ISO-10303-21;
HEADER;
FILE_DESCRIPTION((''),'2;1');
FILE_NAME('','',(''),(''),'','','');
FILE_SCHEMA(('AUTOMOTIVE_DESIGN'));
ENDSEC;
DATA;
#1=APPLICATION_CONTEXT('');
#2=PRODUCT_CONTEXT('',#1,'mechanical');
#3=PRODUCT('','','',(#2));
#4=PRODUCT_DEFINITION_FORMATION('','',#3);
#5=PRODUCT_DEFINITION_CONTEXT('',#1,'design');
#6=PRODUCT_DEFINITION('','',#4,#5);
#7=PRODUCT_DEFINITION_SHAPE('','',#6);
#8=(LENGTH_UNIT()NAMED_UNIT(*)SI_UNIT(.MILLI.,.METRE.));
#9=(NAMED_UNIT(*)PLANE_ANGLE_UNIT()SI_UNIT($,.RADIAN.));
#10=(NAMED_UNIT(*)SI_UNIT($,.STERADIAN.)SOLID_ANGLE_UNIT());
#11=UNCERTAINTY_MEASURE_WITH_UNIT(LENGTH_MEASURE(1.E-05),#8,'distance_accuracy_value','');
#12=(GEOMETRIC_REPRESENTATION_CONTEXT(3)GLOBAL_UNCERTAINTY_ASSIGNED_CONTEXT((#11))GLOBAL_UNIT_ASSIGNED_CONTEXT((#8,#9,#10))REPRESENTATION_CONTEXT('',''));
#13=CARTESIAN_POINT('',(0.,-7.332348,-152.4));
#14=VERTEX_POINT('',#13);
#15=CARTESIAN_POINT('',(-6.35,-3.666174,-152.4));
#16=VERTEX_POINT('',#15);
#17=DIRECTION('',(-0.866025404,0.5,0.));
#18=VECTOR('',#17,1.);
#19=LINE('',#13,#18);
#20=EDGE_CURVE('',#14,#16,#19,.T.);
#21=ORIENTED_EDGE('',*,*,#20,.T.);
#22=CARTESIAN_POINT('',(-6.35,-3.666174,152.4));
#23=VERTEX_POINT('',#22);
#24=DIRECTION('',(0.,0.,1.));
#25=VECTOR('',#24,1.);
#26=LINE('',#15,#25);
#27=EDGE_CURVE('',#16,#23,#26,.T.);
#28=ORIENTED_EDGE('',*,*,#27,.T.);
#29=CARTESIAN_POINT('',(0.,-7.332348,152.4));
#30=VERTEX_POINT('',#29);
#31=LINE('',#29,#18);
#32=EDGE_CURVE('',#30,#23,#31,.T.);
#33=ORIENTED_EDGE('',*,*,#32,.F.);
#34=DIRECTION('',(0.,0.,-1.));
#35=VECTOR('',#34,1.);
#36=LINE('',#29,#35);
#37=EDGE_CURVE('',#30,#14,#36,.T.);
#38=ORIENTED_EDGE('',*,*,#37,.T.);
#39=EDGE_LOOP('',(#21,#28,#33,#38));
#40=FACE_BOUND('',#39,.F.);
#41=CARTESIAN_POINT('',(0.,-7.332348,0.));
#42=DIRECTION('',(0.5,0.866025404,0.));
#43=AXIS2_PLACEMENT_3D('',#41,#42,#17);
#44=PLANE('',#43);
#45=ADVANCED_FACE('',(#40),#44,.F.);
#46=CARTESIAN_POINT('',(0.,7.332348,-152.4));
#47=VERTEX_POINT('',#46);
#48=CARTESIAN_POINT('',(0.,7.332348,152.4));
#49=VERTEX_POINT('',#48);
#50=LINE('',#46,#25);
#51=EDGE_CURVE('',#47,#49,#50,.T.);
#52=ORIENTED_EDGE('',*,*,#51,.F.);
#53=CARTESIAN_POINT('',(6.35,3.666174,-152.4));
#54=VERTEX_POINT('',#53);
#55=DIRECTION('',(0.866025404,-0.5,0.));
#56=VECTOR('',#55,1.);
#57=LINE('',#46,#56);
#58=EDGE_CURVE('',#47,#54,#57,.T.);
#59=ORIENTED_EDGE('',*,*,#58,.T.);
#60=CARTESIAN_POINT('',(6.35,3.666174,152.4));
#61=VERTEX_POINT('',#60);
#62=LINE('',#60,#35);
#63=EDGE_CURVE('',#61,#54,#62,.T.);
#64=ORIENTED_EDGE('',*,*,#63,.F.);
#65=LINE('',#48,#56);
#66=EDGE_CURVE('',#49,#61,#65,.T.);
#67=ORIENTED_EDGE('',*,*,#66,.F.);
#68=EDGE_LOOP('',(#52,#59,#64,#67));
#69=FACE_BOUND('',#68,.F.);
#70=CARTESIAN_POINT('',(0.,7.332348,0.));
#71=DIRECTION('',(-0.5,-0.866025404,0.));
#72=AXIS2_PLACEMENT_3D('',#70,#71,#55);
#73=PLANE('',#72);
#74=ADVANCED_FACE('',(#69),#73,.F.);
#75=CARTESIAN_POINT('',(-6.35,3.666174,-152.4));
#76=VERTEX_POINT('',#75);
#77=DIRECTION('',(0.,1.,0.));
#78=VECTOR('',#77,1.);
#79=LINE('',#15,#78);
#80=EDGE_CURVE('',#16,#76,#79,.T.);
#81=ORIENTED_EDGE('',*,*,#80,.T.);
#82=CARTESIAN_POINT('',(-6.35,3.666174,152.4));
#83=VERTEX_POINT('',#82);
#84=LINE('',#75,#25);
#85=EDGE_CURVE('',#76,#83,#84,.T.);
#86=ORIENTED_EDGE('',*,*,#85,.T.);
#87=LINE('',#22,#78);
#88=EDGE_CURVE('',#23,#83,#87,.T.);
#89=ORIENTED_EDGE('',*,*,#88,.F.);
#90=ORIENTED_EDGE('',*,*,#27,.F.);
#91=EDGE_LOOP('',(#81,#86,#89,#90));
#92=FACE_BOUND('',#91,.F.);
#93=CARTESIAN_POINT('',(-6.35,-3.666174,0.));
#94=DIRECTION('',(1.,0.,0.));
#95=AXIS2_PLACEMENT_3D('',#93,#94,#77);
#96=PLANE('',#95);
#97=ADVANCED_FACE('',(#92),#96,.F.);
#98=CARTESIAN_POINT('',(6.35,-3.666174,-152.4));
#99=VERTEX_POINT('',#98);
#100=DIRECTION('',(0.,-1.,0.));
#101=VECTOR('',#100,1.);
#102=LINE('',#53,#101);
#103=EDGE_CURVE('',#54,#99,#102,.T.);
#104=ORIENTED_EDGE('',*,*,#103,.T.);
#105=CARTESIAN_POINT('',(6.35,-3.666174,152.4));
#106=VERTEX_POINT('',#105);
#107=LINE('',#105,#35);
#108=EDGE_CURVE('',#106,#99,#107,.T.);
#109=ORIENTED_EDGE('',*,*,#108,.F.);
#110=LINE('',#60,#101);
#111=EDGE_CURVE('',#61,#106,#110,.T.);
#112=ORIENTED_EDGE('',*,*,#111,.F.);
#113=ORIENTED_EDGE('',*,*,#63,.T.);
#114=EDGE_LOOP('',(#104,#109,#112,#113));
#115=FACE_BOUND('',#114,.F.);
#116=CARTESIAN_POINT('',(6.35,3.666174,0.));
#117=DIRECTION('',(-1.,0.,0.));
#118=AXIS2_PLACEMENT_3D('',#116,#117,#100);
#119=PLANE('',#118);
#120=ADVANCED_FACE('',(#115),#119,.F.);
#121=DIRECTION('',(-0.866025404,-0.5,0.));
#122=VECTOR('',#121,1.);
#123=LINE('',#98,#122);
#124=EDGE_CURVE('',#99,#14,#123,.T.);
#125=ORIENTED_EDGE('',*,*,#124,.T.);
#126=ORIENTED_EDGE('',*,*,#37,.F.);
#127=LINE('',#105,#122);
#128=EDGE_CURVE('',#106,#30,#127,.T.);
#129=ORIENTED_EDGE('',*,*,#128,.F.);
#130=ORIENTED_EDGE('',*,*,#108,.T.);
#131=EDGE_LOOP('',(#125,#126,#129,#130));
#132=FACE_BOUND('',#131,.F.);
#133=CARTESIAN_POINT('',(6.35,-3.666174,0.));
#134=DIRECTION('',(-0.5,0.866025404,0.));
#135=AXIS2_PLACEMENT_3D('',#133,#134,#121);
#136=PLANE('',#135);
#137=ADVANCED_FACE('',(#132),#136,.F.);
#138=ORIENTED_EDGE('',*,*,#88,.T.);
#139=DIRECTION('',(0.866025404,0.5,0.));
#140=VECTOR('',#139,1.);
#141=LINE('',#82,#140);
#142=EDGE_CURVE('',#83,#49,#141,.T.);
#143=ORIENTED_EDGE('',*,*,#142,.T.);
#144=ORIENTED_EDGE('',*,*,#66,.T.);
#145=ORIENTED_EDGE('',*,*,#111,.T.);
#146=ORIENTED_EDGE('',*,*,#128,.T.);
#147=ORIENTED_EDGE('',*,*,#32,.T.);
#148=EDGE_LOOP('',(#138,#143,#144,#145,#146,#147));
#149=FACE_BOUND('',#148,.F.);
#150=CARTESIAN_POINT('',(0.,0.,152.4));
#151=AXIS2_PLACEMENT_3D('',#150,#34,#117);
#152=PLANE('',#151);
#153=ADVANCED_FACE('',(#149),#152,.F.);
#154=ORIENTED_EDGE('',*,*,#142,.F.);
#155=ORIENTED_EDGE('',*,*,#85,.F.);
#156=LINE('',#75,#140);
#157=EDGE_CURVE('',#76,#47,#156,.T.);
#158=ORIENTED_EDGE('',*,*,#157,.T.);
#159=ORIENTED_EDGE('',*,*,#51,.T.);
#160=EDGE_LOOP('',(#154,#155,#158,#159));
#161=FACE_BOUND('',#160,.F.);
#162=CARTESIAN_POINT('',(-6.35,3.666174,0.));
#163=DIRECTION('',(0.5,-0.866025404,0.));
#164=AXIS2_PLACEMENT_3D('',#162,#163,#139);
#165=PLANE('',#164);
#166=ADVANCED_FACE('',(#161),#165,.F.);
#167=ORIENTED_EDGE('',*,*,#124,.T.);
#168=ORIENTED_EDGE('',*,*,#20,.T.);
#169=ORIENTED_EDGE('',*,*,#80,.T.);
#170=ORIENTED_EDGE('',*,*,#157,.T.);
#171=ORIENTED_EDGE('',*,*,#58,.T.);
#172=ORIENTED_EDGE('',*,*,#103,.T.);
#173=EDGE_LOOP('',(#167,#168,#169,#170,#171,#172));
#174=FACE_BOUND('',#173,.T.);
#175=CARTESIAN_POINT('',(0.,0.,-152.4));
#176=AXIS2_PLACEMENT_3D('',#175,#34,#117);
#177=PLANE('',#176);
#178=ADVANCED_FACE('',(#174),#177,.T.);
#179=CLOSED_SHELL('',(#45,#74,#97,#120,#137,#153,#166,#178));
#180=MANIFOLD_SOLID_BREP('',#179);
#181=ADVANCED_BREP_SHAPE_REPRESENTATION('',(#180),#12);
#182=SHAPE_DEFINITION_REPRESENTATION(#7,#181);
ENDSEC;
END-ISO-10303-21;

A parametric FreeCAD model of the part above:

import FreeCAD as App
import Part
import Sketcher
Q = App.Units.Quantity


def add_polygon(sketch, points):
    """Adds a closed chain of lines whose ends are joined by coincident constraints."""
    first, n = sketch.GeometryCount, len(points)
    for a, b in zip(points, points[1:] + points[:1]):
        sketch.addGeometry(Part.LineSegment(App.Vector(*a, 0), App.Vector(*b, 0)), False)
    for i in range(n):
        sketch.addConstraint(Sketcher.Constraint("Coincident", first + i, 2, first + (i + 1) % n, 1))

doc = App.newDocument("Part")
body = doc.addObject("PartDesign::Body", "Body")

sketch1 = body.newObject("Sketcher::SketchObject", "Sketch")
sketch1.AttachmentSupport = (doc.getObject("XY_Plane"), [""])
sketch1.MapMode = "FlatFace"
add_polygon(sketch1, [(6, 4), (0, 7), (-6, 4), (-6, -4), (0, -7), (6, -4)])
sketch1.addConstraint([
    Sketcher.Constraint("Vertical", 2),
    Sketcher.Constraint("Vertical", 5),
    Sketcher.Constraint("Symmetric", 0, 2, 3, 2, -1, 1),
    Sketcher.Constraint("Symmetric", 1, 2, 4, 2, -1, 1),
    Sketcher.Constraint("PointOnObject", 0, 2, -2),
    Sketcher.Constraint("Parallel", 0, 3),
    Sketcher.Constraint("Horizontal", 2, 2, 4, 2),
    Sketcher.Constraint("Angle", 0, Q("150 deg")),
    Sketcher.Constraint("DistanceX", 2, 2, 4, 2, Q("0.5 in")),
    Sketcher.Constraint("DistanceY", 2, 2, 2, 1, Q("7.332348 mm")),
])
pad1 = body.newObject("PartDesign::Pad", "Pad")
pad1.Profile = sketch1
pad1.Length = Q("12 in")
pad1.Midplane = True

doc.recompute()
